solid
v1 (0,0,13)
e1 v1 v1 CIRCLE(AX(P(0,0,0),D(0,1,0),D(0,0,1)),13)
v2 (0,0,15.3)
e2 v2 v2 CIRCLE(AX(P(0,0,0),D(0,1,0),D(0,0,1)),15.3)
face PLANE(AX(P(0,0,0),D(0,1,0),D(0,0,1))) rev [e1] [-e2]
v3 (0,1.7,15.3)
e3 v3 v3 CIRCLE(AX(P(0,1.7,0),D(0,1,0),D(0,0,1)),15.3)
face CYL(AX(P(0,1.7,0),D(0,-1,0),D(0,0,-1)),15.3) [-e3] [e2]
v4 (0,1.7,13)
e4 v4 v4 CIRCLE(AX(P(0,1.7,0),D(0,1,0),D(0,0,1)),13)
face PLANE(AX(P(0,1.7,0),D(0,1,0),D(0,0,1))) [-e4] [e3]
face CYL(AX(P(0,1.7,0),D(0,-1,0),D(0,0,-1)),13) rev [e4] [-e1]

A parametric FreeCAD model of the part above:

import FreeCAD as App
import Part
import Sketcher
from FreeCAD import Vector
Q = App.Units.Quantity

doc = App.newDocument("Part")
body = doc.addObject("PartDesign::Body", "Body")

sketch1 = body.newObject("Sketcher::SketchObject", "Sketch")
sketch1.AttachmentSupport = (doc.getObject("XZ_Plane"), [""])
sketch1.MapMode = "FlatFace"
sketch1.addGeometry(Part.Circle(Vector(0, 0, 0), Vector(0, 0, 1), 15), False)
sketch1.addGeometry(Part.Circle(Vector(0, 0, 0), Vector(0, 0, 1), 13), False)
sketch1.addConstraint(Sketcher.Constraint("Coincident", 0, 3, -1, 1))
sketch1.addConstraint(Sketcher.Constraint("Coincident", 1, 3, -1, 1))
sketch1.addConstraint(Sketcher.Constraint("Diameter", 1, Q("26 mm")))
sketch1.addConstraint(Sketcher.Constraint("Diameter", 0, Q("30.6 mm")))
pad1 = body.newObject("PartDesign::Pad", "Pad")
pad1.Profile = sketch1
pad1.Length = 1.7
pad1.Reversed = True

doc.recompute()
